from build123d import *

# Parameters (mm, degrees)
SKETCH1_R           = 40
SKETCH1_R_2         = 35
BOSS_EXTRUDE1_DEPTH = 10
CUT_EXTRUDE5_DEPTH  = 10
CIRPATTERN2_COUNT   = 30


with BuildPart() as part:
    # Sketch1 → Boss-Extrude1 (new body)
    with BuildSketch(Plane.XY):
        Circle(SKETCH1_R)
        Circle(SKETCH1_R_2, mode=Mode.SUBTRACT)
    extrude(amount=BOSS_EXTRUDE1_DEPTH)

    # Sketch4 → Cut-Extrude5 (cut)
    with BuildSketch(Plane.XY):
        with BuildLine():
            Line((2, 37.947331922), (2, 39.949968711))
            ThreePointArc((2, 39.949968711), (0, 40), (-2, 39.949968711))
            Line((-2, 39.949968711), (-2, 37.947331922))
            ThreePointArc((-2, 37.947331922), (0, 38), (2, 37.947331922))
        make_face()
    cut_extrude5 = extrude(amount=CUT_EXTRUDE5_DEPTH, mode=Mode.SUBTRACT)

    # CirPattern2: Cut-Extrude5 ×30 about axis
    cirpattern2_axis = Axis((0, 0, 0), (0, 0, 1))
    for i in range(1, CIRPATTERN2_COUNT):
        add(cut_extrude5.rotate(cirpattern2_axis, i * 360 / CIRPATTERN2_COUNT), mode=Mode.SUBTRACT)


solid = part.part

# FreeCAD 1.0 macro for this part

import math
import FreeCAD as App
import Part
import Sketcher

V = App.Vector
Q = App.Units.Quantity

doc = App.newDocument("Part")
body = doc.addObject("PartDesign::Body", "Body")

# Sketch on XY plane
sketch1 = body.newObject("Sketcher::SketchObject", "Sketch")
sketch1.AttachmentSupport = (doc.getObject("XY_Plane"), [""])
sketch1.MapMode = "FlatFace"
sketch1.addGeometry(Part.Circle(V(0, 0, 0), V(0, 0, 1), 40), False)
sketch1.addGeometry(Part.Circle(V(0, 0, 0), V(0, 0, 1), 35), False)
sketch1.addConstraint(Sketcher.Constraint("Coincident", 0, 3, -1, 1))
sketch1.addConstraint(Sketcher.Constraint("Coincident", 1, 3, -1, 1))
sketch1.addConstraint(Sketcher.Constraint("Diameter", 0, Q("80 mm")))
sketch1.addConstraint(Sketcher.Constraint("Diameter", 1, Q("70 mm")))
pad1 = body.newObject("PartDesign::Pad", "Pad")
pad1.Profile = sketch1
pad1.Length = 10

# Sketch on XY plane
sketch2 = body.newObject("Sketcher::SketchObject", "Sketch001")
sketch2.AttachmentSupport = (doc.getObject("XY_Plane"), [""])
sketch2.MapMode = "FlatFace"
sketch2.addGeometry(Part.LineSegment(V(2, 37.947332, 0), V(2, 39.949969, 0)), False)
sketch2.addGeometry(Part.ArcOfCircle(Part.Circle(V(0, 0, 0), V(0, 0, 1), 40), math.radians(87.134016), math.radians(92.865984)), False)
sketch2.addGeometry(Part.LineSegment(V(-2, 39.949969, 0), V(-2, 37.947332, 0)), False)
sketch2.addGeometry(Part.ArcOfCircle(Part.Circle(V(0, 0, 0), V(0, 0, 1), 38), math.radians(86.983039), math.radians(93.016961)), False)
sketch2.addConstraint(Sketcher.Constraint("Coincident", 0, 2, 1, 1))
sketch2.addConstraint(Sketcher.Constraint("Coincident", 1, 2, 2, 1))
sketch2.addConstraint(Sketcher.Constraint("Coincident", 2, 2, 3, 2))
sketch2.addConstraint(Sketcher.Constraint("Coincident", 3, 1, 0, 1))
sketch2.addConstraint(Sketcher.Constraint("Vertical", 0))
sketch2.addConstraint(Sketcher.Constraint("Vertical", 2))
sketch2.addConstraint(Sketcher.Constraint("Coincident", 1, 3, -1, 1))
sketch2.addConstraint(Sketcher.Constraint("Coincident", 3, 3, -1, 1))
sketch2.addConstraint(Sketcher.Constraint("Horizontal", 0, 2, 1, 2))
sketch2.addConstraint(Sketcher.Constraint("Radius", 1, Q("40 mm")))
sketch2.addConstraint(Sketcher.Constraint("Radius", 3, Q("38 mm")))
sketch2.addConstraint(Sketcher.Constraint("DistanceX", -1, 1, 0, 2, Q("2 mm")))
pocket1 = body.newObject("PartDesign::Pocket", "Pocket")
pocket1.Profile = sketch2
pocket1.Length = 10
pocket1.Reversed = True
doc.recompute()

polarpattern = body.newObject("PartDesign::PolarPattern", "PolarPattern")
polarpattern.Originals = [pocket1]
polarpattern.Axis = (doc.getObject("Z_Axis"), [""])
polarpattern.Angle = 360
polarpattern.Occurrences = 30
body.Tip = polarpattern

doc.recompute()
